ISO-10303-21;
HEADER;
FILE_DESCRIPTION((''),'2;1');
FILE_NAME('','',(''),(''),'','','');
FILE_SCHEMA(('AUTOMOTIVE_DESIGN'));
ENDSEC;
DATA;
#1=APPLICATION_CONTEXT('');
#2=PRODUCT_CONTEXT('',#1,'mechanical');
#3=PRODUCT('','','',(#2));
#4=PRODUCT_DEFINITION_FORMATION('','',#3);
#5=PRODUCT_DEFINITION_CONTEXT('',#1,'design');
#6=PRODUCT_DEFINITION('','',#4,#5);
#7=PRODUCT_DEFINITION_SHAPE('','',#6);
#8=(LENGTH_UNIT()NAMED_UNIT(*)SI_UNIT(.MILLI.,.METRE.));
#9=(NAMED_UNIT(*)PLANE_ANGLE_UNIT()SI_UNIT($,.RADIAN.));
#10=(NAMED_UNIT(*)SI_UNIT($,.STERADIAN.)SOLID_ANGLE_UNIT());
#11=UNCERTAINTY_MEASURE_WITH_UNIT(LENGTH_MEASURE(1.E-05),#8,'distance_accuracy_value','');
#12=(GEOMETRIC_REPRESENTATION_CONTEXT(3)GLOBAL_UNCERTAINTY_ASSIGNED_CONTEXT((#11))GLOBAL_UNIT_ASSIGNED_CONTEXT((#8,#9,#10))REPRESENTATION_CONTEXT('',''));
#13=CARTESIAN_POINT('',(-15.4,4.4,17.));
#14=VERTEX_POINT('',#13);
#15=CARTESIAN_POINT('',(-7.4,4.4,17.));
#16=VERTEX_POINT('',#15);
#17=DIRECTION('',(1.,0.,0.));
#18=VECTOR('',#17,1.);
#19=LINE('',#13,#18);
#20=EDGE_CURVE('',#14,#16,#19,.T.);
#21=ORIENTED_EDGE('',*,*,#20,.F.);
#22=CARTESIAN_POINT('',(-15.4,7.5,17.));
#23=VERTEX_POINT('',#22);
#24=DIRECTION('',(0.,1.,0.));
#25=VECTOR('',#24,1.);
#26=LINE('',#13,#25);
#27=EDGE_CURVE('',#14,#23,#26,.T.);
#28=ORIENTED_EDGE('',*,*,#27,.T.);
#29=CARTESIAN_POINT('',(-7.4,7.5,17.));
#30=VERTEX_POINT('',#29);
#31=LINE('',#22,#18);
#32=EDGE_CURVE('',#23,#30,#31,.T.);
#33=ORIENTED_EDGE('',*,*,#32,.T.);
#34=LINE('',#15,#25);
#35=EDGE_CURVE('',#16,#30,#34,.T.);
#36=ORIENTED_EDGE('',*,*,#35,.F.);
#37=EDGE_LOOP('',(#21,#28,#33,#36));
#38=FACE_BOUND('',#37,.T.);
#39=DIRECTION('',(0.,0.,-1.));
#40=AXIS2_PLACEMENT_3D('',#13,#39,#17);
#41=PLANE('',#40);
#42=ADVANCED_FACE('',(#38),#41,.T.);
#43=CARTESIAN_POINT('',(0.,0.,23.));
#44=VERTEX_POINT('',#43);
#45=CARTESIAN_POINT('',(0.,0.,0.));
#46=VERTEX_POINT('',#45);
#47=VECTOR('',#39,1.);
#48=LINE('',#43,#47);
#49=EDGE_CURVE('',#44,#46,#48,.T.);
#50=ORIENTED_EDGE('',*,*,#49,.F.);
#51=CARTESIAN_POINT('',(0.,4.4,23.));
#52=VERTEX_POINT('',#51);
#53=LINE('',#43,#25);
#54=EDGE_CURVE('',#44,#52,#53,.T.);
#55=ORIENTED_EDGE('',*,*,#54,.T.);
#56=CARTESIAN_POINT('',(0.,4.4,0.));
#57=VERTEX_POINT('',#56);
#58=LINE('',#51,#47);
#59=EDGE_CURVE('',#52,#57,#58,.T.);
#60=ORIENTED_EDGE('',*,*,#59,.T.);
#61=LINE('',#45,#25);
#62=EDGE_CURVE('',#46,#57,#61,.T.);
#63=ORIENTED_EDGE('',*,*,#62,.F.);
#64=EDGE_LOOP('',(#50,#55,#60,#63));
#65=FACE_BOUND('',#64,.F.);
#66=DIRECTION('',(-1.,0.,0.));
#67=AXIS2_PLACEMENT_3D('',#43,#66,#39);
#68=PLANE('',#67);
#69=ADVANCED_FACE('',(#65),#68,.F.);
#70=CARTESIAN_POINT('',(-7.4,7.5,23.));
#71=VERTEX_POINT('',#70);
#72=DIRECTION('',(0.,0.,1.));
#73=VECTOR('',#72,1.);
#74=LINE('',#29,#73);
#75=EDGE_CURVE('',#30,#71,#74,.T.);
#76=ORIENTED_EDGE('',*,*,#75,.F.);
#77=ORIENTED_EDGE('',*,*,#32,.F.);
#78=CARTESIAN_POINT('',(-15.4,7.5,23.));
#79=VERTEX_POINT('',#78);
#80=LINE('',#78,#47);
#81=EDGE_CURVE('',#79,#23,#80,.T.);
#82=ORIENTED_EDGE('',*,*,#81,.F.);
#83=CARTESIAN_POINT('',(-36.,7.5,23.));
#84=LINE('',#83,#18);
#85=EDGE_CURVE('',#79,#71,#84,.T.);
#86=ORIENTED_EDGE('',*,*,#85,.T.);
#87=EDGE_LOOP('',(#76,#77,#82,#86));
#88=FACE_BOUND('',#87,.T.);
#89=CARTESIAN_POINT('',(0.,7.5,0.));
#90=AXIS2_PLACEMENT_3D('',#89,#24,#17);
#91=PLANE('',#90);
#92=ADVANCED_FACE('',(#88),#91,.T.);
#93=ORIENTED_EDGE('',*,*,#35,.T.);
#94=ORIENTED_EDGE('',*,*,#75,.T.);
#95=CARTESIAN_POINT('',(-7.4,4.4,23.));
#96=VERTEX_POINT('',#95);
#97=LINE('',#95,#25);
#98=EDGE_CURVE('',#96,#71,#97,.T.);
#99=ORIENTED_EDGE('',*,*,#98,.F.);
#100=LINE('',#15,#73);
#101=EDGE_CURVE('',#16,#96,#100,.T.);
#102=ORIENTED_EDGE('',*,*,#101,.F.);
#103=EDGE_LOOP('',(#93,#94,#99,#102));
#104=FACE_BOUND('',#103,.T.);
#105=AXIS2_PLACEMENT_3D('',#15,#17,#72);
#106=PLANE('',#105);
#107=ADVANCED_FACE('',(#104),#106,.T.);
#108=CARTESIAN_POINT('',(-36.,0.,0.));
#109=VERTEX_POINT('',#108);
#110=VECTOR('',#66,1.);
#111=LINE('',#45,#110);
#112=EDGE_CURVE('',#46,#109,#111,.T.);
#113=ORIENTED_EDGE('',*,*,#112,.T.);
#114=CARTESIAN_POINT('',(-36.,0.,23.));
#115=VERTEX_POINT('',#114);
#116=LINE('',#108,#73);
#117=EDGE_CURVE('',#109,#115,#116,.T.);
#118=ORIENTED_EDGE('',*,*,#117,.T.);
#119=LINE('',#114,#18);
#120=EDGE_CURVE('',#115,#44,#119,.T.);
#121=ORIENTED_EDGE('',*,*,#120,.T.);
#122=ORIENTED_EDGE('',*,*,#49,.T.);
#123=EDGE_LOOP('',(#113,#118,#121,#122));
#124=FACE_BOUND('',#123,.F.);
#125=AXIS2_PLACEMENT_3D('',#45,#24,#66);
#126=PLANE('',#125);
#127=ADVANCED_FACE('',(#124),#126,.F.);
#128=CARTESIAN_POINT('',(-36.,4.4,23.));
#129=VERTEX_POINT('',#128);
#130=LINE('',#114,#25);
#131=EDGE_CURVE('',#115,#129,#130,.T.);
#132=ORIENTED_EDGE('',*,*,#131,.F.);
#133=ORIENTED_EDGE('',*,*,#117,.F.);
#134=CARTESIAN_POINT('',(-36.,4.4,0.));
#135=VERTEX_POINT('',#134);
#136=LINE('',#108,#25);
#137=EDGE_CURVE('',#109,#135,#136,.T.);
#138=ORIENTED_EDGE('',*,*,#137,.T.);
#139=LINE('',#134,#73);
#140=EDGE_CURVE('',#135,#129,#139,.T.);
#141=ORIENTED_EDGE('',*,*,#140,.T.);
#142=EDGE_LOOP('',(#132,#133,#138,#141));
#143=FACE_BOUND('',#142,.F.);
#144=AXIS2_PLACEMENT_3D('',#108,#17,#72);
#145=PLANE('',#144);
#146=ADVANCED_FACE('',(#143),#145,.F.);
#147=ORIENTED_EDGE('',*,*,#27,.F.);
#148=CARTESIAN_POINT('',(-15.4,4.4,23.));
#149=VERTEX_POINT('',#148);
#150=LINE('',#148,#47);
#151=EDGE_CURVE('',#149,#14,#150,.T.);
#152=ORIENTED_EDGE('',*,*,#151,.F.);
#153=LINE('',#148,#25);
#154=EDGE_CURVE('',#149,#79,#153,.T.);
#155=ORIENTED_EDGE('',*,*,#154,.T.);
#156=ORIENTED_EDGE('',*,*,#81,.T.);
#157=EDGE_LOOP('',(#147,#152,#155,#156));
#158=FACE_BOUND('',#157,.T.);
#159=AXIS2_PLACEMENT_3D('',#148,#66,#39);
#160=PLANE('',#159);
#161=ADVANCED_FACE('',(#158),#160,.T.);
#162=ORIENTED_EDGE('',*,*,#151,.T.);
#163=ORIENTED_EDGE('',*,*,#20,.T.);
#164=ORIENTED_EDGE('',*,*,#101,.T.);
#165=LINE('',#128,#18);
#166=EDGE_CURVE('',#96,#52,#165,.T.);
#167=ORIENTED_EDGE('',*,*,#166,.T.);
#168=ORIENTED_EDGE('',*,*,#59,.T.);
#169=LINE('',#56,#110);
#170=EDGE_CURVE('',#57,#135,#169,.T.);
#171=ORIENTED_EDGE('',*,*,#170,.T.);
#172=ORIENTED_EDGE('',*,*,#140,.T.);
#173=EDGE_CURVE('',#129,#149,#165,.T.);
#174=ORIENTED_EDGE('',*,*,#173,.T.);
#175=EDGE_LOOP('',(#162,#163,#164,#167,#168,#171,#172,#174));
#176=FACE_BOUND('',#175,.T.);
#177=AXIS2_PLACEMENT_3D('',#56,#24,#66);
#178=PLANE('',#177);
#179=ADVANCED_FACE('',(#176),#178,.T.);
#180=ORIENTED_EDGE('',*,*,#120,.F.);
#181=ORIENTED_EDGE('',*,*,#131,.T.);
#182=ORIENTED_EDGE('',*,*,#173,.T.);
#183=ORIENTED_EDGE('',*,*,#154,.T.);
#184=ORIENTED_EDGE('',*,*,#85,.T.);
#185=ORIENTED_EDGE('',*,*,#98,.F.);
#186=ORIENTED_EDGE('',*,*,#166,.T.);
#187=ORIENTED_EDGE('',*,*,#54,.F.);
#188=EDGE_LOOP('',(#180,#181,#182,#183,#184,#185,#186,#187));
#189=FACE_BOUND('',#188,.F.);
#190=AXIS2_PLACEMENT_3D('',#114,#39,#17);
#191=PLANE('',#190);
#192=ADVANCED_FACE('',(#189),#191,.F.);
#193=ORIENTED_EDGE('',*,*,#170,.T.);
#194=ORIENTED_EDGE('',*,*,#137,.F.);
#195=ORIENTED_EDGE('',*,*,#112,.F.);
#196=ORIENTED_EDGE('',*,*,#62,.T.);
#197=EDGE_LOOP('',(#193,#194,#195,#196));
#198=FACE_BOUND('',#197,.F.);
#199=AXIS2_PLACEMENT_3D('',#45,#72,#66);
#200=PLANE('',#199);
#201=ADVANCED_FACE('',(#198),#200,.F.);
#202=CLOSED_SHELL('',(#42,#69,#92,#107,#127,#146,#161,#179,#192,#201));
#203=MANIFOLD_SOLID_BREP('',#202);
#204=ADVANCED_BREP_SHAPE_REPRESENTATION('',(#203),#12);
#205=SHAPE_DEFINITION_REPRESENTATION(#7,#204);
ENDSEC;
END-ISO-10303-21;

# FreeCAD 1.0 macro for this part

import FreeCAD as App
import Part
import Sketcher

V = App.Vector

doc = App.newDocument("Part")
body = doc.addObject("PartDesign::Body", "Body")

sketch1 = body.newObject("Sketcher::SketchObject", "Sketch")
sketch1.AttachmentSupport = (doc.getObject("XZ_Plane"), [""])
sketch1.MapMode = "FlatFace"
sketch1.addGeometry([
    Part.LineSegment(V(-36, 0, 0), V(-36, 23, 0)),
    Part.LineSegment(V(-36, 23, 0), V(0, 23, 0)),
    Part.LineSegment(V(0, 23, 0), V(0, 0, 0)),
    Part.LineSegment(V(0, 0, 0), V(-36, 0, 0)),
], False)
sketch1.addConstraint([
    Sketcher.Constraint("Coincident", 0, 2, 1, 1),
    Sketcher.Constraint("Coincident", 1, 2, 2, 1),
    Sketcher.Constraint("Coincident", 2, 2, 3, 1),
    Sketcher.Constraint("Coincident", 3, 2, 0, 1),
    Sketcher.Constraint("Vertical", 0),
    Sketcher.Constraint("Horizontal", 1),
    Sketcher.Constraint("Vertical", 2),
    Sketcher.Constraint("Horizontal", 3),
    Sketcher.Constraint("Coincident", 2, 2, -1, 1),
    Sketcher.Constraint("DistanceX", 1, 1, 1, 2, 36.0),
    Sketcher.Constraint("DistanceY", 0, 1, 0, 2, 23.0),
])
pad1 = body.newObject("PartDesign::Pad", "Pad")
pad1.Profile = sketch1
pad1.Length = 4.4
pad1.Reversed = True

sketch2 = body.newObject("Sketcher::SketchObject", "Sketch001")
sketch2.AttachmentSupport = (doc.getObject("XZ_Plane"), [""])
sketch2.MapMode = "FlatFace"
sketch2.AttachmentOffset = App.Placement(V(0, 0, -4.4), App.Rotation())
sketch2.addGeometry([
    Part.LineSegment(V(-15.4, 17, 0), V(-15.4, 23, 0)),
    Part.LineSegment(V(-15.4, 23, 0), V(-7.4, 23, 0)),
    Part.LineSegment(V(-7.4, 23, 0), V(-7.4, 17, 0)),
    Part.LineSegment(V(-7.4, 17, 0), V(-15.4, 17, 0)),
], False)
sketch2.addConstraint([
    Sketcher.Constraint("Coincident", 0, 2, 1, 1),
    Sketcher.Constraint("Coincident", 1, 2, 2, 1),
    Sketcher.Constraint("Coincident", 2, 2, 3, 1),
    Sketcher.Constraint("Coincident", 3, 2, 0, 1),
    Sketcher.Constraint("Vertical", 0),
    Sketcher.Constraint("Horizontal", 1),
    Sketcher.Constraint("Vertical", 2),
    Sketcher.Constraint("Horizontal", 3),
    Sketcher.Constraint("DistanceX", 1, 1, 1, 2, 8.0),
    Sketcher.Constraint("DistanceY", 0, 1, 0, 2, 6.0),
    Sketcher.Constraint("DistanceX", 1, 2, -1, 1, 7.4),
    Sketcher.Constraint("DistanceY", -1, 1, 0, 2, 23.0),
])
pad2 = body.newObject("PartDesign::Pad", "Pad001")
pad2.Profile = sketch2
pad2.Length = 3.1
pad2.Reversed = True

doc.recompute()
